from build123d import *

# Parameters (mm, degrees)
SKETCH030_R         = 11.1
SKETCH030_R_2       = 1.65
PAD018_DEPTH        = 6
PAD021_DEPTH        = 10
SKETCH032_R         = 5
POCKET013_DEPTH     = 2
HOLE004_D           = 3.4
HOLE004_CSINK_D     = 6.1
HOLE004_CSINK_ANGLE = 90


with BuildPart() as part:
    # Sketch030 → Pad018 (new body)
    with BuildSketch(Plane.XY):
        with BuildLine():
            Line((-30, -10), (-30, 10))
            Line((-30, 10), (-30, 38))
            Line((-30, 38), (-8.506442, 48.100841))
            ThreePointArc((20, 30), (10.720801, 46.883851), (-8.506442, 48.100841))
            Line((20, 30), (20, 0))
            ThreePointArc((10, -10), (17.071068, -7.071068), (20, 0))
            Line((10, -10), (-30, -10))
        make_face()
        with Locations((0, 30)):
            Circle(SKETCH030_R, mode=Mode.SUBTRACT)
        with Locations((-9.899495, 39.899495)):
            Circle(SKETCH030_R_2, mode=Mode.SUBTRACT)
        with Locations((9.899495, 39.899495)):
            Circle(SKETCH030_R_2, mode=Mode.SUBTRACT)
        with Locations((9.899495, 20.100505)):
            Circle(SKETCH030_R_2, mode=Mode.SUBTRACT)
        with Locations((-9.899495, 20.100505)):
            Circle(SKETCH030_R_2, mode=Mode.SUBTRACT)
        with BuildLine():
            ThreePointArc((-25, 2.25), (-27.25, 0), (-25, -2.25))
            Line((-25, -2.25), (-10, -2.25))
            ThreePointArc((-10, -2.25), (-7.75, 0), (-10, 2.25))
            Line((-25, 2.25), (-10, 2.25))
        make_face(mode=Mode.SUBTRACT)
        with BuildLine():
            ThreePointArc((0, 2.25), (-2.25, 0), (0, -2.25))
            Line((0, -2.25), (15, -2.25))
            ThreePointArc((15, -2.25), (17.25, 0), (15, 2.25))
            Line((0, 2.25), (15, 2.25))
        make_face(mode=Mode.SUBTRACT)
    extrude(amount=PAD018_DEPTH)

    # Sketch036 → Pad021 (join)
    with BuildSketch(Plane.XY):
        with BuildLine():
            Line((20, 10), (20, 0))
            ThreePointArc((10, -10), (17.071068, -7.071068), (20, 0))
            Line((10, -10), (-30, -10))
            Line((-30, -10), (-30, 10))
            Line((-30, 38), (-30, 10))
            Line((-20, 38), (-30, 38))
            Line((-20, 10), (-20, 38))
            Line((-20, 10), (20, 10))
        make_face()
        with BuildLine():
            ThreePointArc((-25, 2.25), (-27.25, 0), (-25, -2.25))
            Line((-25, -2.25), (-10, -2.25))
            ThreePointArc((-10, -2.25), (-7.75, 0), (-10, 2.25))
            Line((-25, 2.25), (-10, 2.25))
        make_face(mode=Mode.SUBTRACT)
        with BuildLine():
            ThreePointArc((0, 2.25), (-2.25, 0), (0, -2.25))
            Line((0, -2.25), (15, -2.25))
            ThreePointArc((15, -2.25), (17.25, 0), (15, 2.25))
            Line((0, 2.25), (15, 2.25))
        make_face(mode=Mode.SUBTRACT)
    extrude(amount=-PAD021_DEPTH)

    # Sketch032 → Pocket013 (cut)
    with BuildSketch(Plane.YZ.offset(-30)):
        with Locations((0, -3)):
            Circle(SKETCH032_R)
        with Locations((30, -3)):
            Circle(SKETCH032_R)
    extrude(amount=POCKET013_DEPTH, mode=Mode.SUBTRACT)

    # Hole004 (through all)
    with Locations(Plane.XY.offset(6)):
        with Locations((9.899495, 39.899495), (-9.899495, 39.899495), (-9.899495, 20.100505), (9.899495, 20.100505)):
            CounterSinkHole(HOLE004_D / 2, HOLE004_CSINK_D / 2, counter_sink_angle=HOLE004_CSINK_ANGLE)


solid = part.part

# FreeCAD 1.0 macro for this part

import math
import FreeCAD as App
import Part
import Sketcher

V = App.Vector
Q = App.Units.Quantity

doc = App.newDocument("Part")
params = doc.addObject("Spreadsheet::Sheet", "Params")
for row, (alias, value) in enumerate([
    ("sketch1_radius", "9.999999 mm"),
    ("sketch1_radius2", "20 mm"),
    ("sketch1_diameter", "3.3 mm"),
    ("sketch1_diameter2", "22.2 mm"),
    ("sketch1_width", "40 mm"),
    ("pad1_length", "6 mm"),
    ("sketch2_radius", "9.999999 mm"),
    ("sketch2_width", "40 mm"),
    ("sketch2_width2", "15 mm"),
    ("sketch2_height", "28 mm"),
    ("sketch2_radius2", "2.25 mm"),
    ("pad2_length", "10 mm"),
    ("sketch3_diameter", "10 mm"),
    ("pocket1_length", "2 mm"),
    ("sketch4_diameter", "3.4 mm"),
    ("hole_diameter", "3.4 mm"),
    ("hole_csink_diameter", "6.1 mm"),
], start=1):
    params.set(f"A{row}", alias)
    params.set(f"B{row}", "=" + value)
    params.setAlias(f"B{row}", alias)

body = doc.addObject("PartDesign::Body", "Body")

# Sketch on XY plane
sketch1 = doc.addObject("Sketcher::SketchObject", "Sketch")
body.addObject(sketch1)
sketch1.AttachmentSupport = (doc.XY_Plane, [""])
sketch1.MapMode = "FlatFace"
sketch1.addGeometry([
    Part.LineSegment(V(-30, 38, 0), V(-30, -10, 0)),  # 0
    Part.LineSegment(V(-30, -10, 0), V(10, -10, 0)),  # 1
    Part.ArcOfCircle(Part.Circle(V(10.000001, -0.000001, 0), V(0, 0, 1), 9.999999), math.radians(-90.000004), math.radians(0.000004)),  # 2
    Part.LineSegment(V(20, 0, 0), V(20, 30, 0)),  # 3
    Part.ArcOfCircle(Part.Circle(V(0, 30, 0), V(0, 0, 1), 20), math.radians(0), math.radians(115.171053)),  # 4
    Part.LineSegment(V(-8.506442, 48.100841, 0), V(-30, 38, 0)),  # 5
    Part.LineSegment(V(0, 2.25, 0), V(15, 2.25, 0)),  # 6
    Part.ArcOfCircle(Part.Circle(V(15, 0, 0), V(0, 0, 1), 2.25), math.radians(-90), math.radians(90)),  # 7
    Part.LineSegment(V(15, -2.25, 0), V(0, -2.25, 0)),  # 8
    Part.ArcOfCircle(Part.Circle(V(0, 0, 0), V(0, 0, 1), 2.25), math.radians(90), math.radians(270)),  # 9
    Part.LineSegment(V(-25, 2.25, 0), V(-10, 2.25, 0)),  # 10
    Part.ArcOfCircle(Part.Circle(V(-10, 0, 0), V(0, 0, 1), 2.25), math.radians(-90), math.radians(90)),  # 11
    Part.LineSegment(V(-10, -2.25, 0), V(-25, -2.25, 0)),  # 12
    Part.ArcOfCircle(Part.Circle(V(-25, 0, 0), V(0, 0, 1), 2.25), math.radians(90), math.radians(270)),  # 13
    Part.Circle(V(9.899495, 20.100505, 0), V(0, 0, 1), 1.65),  # 14
    Part.Circle(V(0, 30, 0), V(0, 0, 1), 11.1),  # 15
    Part.Circle(V(9.899495, 39.899495, 0), V(0, 0, 1), 1.65),  # 16
    Part.Circle(V(-9.899495, 20.100505, 0), V(0, 0, 1), 1.65),  # 17
    Part.Circle(V(-9.899495, 39.899495, 0), V(0, 0, 1), 1.65),  # 18
], False)
sketch1.addConstraint([
    Sketcher.Constraint("Coincident", 0, 2, 1, 1),
    Sketcher.Constraint("Tangent", 1, 2, 2, 1),
    Sketcher.Constraint("Tangent", 2, 2, 3, 1),
    Sketcher.Constraint("Tangent", 3, 2, 4, 1),
    Sketcher.Constraint("Tangent", 4, 2, 5, 1),
    Sketcher.Constraint("Coincident", 5, 2, 0, 1),
    Sketcher.Constraint("Tangent", 6, 2, 7, 2),
    Sketcher.Constraint("Tangent", 7, 1, 8, 1),
    Sketcher.Constraint("Tangent", 8, 2, 9, 2),
    Sketcher.Constraint("Tangent", 9, 1, 6, 1),
    Sketcher.Constraint("Tangent", 10, 2, 11, 2),
    Sketcher.Constraint("Tangent", 11, 1, 12, 1),
    Sketcher.Constraint("Tangent", 12, 2, 13, 2),
    Sketcher.Constraint("Tangent", 13, 1, 10, 1),
    Sketcher.Constraint("Vertical", 0),
    Sketcher.Constraint("Horizontal", 1),
    Sketcher.Constraint("Vertical", 3),
    Sketcher.Constraint("Horizontal", 6),
    Sketcher.Constraint("Horizontal", 8),
    Sketcher.Constraint("Horizontal", 10),
    Sketcher.Constraint("Horizontal", 12),
    Sketcher.Constraint("Coincident", 9, 3, -1, 1),
    Sketcher.Constraint("Coincident", 15, 3, 4, 3),
    Sketcher.Constraint("Equal", 9, 11),
    Sketcher.Constraint("Equal", 14, 16),
    Sketcher.Constraint("Equal", 16, 17),
    Sketcher.Constraint("Equal", 17, 18),
    Sketcher.Constraint("Symmetric", 2, 3, 11, 3, -1, 1),
    Sketcher.Constraint("Symmetric", 14, 3, 17, 3, -2),
    Sketcher.Constraint("Symmetric", 16, 3, 18, 3, -2),
    Sketcher.Constraint("PointOnObject", 2, 3, -1),
    Sketcher.Constraint("PointOnObject", 4, 3, -2),
    Sketcher.Constraint("Vertical", 14, 3, 16, 3),
    Sketcher.Constraint("Equal", 8, 10),
    Sketcher.Constraint("Radius", 2, Q("9.999999 mm")),
    Sketcher.Constraint("Radius", 4, Q("20 mm")),
    Sketcher.Constraint("Diameter", 14, Q("3.3 mm")),
    Sketcher.Constraint("Diameter", 15, Q("22.2 mm")),
    Sketcher.Constraint("DistanceX", 1, 1, 1, 2, Q("40 mm")),
    Sketcher.Constraint("DistanceX", 6, 1, 6, 2, Q("15 mm")),
    Sketcher.Constraint("DistanceY", 0, 2, 0, 1, Q("48 mm")),
    Sketcher.Constraint("DistanceY", 3, 1, 3, 2, Q("30 mm")),
    Sketcher.Constraint("Radius", 7, Q("2.25 mm")),
    Sketcher.Constraint("DistanceY", 14, 3, 16, 3, Q("19.79899 mm")),
    Sketcher.Constraint("DistanceX", 17, 3, 14, 3, Q("19.79899 mm")),
    Sketcher.Constraint("DistanceY", -1, 1, 14, 3, Q("20.100505 mm")),
])
sketch1.setExpression("Constraints[34]", "Params.sketch1_radius")
sketch1.setExpression("Constraints[35]", "Params.sketch1_radius2")
sketch1.setExpression("Constraints[36]", "Params.sketch1_diameter")
sketch1.setExpression("Constraints[37]", "Params.sketch1_diameter2")
sketch1.setExpression("Constraints[38]", "Params.sketch1_width")
pad1 = doc.addObject("PartDesign::Pad", "Pad")
body.addObject(pad1)
pad1.Profile = sketch1
pad1.setExpression("Length", "Params.pad1_length")

# Sketch on XY plane
sketch2 = doc.addObject("Sketcher::SketchObject", "Sketch001")
body.addObject(sketch2)
sketch2.AttachmentSupport = (doc.XY_Plane, [""])
sketch2.MapMode = "FlatFace"
sketch2.addGeometry([
    Part.LineSegment(V(20, 0, 0), V(20, 10, 0)),  # 0
    Part.LineSegment(V(20, 10, 0), V(-20, 10, 0)),  # 1
    Part.LineSegment(V(-20, 10, 0), V(-20, 38, 0)),  # 2
    Part.LineSegment(V(-20, 38, 0), V(-30, 38, 0)),  # 3
    Part.LineSegment(V(-30, 38, 0), V(-30, -10, 0)),  # 4
    Part.LineSegment(V(-30, -10, 0), V(10, -10, 0)),  # 5
    Part.ArcOfCircle(Part.Circle(V(10.000001, -0.000001, 0), V(0, 0, 1), 9.999999), math.radians(-90.000004), math.radians(0.000004)),  # 6
    Part.LineSegment(V(0, 2.25, 0), V(15, 2.25, 0)),  # 7
    Part.ArcOfCircle(Part.Circle(V(15, 0, 0), V(0, 0, 1), 2.25), math.radians(-90), math.radians(90)),  # 8
    Part.LineSegment(V(15, -2.25, 0), V(0, -2.25, 0)),  # 9
    Part.ArcOfCircle(Part.Circle(V(0, 0, 0), V(0, 0, 1), 2.25), math.radians(90), math.radians(270)),  # 10
    Part.LineSegment(V(-25, 2.25, 0), V(-10, 2.25, 0)),  # 11
    Part.ArcOfCircle(Part.Circle(V(-10, 0, 0), V(0, 0, 1), 2.25), math.radians(-90), math.radians(90)),  # 12
    Part.LineSegment(V(-10, -2.25, 0), V(-25, -2.25, 0)),  # 13
    Part.ArcOfCircle(Part.Circle(V(-25, 0, 0), V(0, 0, 1), 2.25), math.radians(90), math.radians(270)),  # 14
], False)
sketch2.addConstraint([
    Sketcher.Constraint("Coincident", 0, 2, 1, 1),
    Sketcher.Constraint("Coincident", 1, 2, 2, 1),
    Sketcher.Constraint("Coincident", 2, 2, 3, 1),
    Sketcher.Constraint("Coincident", 3, 2, 4, 1),
    Sketcher.Constraint("Coincident", 4, 2, 5, 1),
    Sketcher.Constraint("Tangent", 5, 2, 6, 1),
    Sketcher.Constraint("Tangent", 6, 2, 0, 1),
    Sketcher.Constraint("Tangent", 7, 2, 8, 2),
    Sketcher.Constraint("Tangent", 8, 1, 9, 1),
    Sketcher.Constraint("Tangent", 9, 2, 10, 2),
    Sketcher.Constraint("Tangent", 10, 1, 7, 1),
    Sketcher.Constraint("Tangent", 11, 2, 12, 2),
    Sketcher.Constraint("Tangent", 12, 1, 13, 1),
    Sketcher.Constraint("Tangent", 13, 2, 14, 2),
    Sketcher.Constraint("Tangent", 14, 1, 11, 1),
    Sketcher.Constraint("Vertical", 0),
    Sketcher.Constraint("Horizontal", 1),
    Sketcher.Constraint("Vertical", 2),
    Sketcher.Constraint("Horizontal", 3),
    Sketcher.Constraint("Vertical", 4),
    Sketcher.Constraint("Horizontal", 5),
    Sketcher.Constraint("Horizontal", 7),
    Sketcher.Constraint("Horizontal", 9),
    Sketcher.Constraint("Horizontal", 11),
    Sketcher.Constraint("Horizontal", 13),
    Sketcher.Constraint("Coincident", 10, 3, -1, 1),
    Sketcher.Constraint("Equal", 10, 12),
    Sketcher.Constraint("Symmetric", 6, 3, 12, 3, -1, 1),
    Sketcher.Constraint("PointOnObject", 6, 3, -1),
    Sketcher.Constraint("Equal", 1, 5),
    Sketcher.Constraint("Equal", 9, 11),
    Sketcher.Constraint("Equal", 3, 0),
    Sketcher.Constraint("Radius", 6, Q("9.999999 mm")),
    Sketcher.Constraint("DistanceX", 1, 2, 1, 1, Q("40 mm")),
    Sketcher.Constraint("DistanceX", 7, 1, 7, 2, Q("15 mm")),
    Sketcher.Constraint("DistanceY", 2, 1, 2, 2, Q("28 mm")),
    Sketcher.Constraint("Radius", 8, Q("2.25 mm")),
    Sketcher.Constraint("DistanceX", -1, 1, 6, 3, Q("10.000001 mm")),
])
sketch2.setExpression("Constraints[32]", "Params.sketch2_radius")
sketch2.setExpression("Constraints[33]", "Params.sketch2_width")
sketch2.setExpression("Constraints[34]", "Params.sketch2_width2")
sketch2.setExpression("Constraints[35]", "Params.sketch2_height")
sketch2.setExpression("Constraints[36]", "Params.sketch2_radius2")
pad2 = doc.addObject("PartDesign::Pad", "Pad001")
body.addObject(pad2)
pad2.Profile = sketch2
pad2.setExpression("Length", "Params.pad2_length")
pad2.Reversed = True

# Sketch on YZ plane
sketch3 = doc.addObject("Sketcher::SketchObject", "Sketch002")
body.addObject(sketch3)
sketch3.AttachmentSupport = (doc.YZ_Plane, [""])
sketch3.MapMode = "FlatFace"
sketch3.AttachmentOffset = App.Placement(V(0, 0, -30), App.Rotation())
sketch3.addGeometry([
    Part.Circle(V(0, -3, 0), V(0, 0, 1), 5),
    Part.Circle(V(30, -3, 0), V(0, 0, 1), 5),
], False)
sketch3.addConstraint([
    Sketcher.Constraint("Equal", 0, 1),
    Sketcher.Constraint("PointOnObject", 0, 3, -2),
    Sketcher.Constraint("Horizontal", 0, 3, 1, 3),
    Sketcher.Constraint("Diameter", 0, Q("10 mm")),
    Sketcher.Constraint("DistanceY", 0, 3, -1, 1, Q("3 mm")),
    Sketcher.Constraint("DistanceX", -1, 1, 1, 3, Q("30 mm")),
])
sketch3.setExpression("Constraints[3]", "Params.sketch3_diameter")
pocket1 = doc.addObject("PartDesign::Pocket", "Pocket")
body.addObject(pocket1)
pocket1.Profile = sketch3
pocket1.setExpression("Length", "Params.pocket1_length")
pocket1.Reversed = True

# Sketch on XY plane
sketch4 = doc.addObject("Sketcher::SketchObject", "Sketch003")
body.addObject(sketch4)
sketch4.AttachmentSupport = (doc.XY_Plane, [""])
sketch4.MapMode = "FlatFace"
sketch4.AttachmentOffset = App.Placement(V(0, 0, 6), App.Rotation())
sketch4.addGeometry([
    Part.Circle(V(9.899495, 39.899495, 0), V(0, 0, 1), 1.7),
    Part.Circle(V(-9.899495, 39.899495, 0), V(0, 0, 1), 1.7),
    Part.Circle(V(-9.899495, 20.100505, 0), V(0, 0, 1), 1.7),
    Part.Circle(V(9.899495, 20.100505, 0), V(0, 0, 1), 1.7),
], False)
sketch4.addConstraint([
    Sketcher.Constraint("Equal", 0, 1),
    Sketcher.Constraint("Equal", 1, 2),
    Sketcher.Constraint("Equal", 2, 3),
    Sketcher.Constraint("Symmetric", 0, 3, 1, 3, -2),
    Sketcher.Constraint("Symmetric", 2, 3, 3, 3, -2),
    Sketcher.Constraint("Vertical", 1, 3, 2, 3),
    Sketcher.Constraint("Diameter", 0, Q("3.4 mm")),
    Sketcher.Constraint("DistanceX", 1, 3, 0, 3, Q("19.79899 mm")),
    Sketcher.Constraint("DistanceY", 2, 3, 1, 3, Q("19.79899 mm")),
    Sketcher.Constraint("DistanceY", -1, 1, 0, 3, Q("39.899495 mm")),
])
sketch4.setExpression("Constraints[6]", "Params.sketch4_diameter")
doc.recompute()
hole = doc.addObject("PartDesign::Hole", "Hole")
body.addObject(hole)
hole.Profile = sketch4
hole.ThreadType = "None"
hole.setExpression("Diameter", "Params.hole_diameter")
hole.DepthType = "ThroughAll"
hole.HoleCutType = "Countersink"
hole.setExpression("HoleCutDiameter", "Params.hole_csink_diameter")
hole.HoleCutCountersinkAngle = 90

doc.recompute()
